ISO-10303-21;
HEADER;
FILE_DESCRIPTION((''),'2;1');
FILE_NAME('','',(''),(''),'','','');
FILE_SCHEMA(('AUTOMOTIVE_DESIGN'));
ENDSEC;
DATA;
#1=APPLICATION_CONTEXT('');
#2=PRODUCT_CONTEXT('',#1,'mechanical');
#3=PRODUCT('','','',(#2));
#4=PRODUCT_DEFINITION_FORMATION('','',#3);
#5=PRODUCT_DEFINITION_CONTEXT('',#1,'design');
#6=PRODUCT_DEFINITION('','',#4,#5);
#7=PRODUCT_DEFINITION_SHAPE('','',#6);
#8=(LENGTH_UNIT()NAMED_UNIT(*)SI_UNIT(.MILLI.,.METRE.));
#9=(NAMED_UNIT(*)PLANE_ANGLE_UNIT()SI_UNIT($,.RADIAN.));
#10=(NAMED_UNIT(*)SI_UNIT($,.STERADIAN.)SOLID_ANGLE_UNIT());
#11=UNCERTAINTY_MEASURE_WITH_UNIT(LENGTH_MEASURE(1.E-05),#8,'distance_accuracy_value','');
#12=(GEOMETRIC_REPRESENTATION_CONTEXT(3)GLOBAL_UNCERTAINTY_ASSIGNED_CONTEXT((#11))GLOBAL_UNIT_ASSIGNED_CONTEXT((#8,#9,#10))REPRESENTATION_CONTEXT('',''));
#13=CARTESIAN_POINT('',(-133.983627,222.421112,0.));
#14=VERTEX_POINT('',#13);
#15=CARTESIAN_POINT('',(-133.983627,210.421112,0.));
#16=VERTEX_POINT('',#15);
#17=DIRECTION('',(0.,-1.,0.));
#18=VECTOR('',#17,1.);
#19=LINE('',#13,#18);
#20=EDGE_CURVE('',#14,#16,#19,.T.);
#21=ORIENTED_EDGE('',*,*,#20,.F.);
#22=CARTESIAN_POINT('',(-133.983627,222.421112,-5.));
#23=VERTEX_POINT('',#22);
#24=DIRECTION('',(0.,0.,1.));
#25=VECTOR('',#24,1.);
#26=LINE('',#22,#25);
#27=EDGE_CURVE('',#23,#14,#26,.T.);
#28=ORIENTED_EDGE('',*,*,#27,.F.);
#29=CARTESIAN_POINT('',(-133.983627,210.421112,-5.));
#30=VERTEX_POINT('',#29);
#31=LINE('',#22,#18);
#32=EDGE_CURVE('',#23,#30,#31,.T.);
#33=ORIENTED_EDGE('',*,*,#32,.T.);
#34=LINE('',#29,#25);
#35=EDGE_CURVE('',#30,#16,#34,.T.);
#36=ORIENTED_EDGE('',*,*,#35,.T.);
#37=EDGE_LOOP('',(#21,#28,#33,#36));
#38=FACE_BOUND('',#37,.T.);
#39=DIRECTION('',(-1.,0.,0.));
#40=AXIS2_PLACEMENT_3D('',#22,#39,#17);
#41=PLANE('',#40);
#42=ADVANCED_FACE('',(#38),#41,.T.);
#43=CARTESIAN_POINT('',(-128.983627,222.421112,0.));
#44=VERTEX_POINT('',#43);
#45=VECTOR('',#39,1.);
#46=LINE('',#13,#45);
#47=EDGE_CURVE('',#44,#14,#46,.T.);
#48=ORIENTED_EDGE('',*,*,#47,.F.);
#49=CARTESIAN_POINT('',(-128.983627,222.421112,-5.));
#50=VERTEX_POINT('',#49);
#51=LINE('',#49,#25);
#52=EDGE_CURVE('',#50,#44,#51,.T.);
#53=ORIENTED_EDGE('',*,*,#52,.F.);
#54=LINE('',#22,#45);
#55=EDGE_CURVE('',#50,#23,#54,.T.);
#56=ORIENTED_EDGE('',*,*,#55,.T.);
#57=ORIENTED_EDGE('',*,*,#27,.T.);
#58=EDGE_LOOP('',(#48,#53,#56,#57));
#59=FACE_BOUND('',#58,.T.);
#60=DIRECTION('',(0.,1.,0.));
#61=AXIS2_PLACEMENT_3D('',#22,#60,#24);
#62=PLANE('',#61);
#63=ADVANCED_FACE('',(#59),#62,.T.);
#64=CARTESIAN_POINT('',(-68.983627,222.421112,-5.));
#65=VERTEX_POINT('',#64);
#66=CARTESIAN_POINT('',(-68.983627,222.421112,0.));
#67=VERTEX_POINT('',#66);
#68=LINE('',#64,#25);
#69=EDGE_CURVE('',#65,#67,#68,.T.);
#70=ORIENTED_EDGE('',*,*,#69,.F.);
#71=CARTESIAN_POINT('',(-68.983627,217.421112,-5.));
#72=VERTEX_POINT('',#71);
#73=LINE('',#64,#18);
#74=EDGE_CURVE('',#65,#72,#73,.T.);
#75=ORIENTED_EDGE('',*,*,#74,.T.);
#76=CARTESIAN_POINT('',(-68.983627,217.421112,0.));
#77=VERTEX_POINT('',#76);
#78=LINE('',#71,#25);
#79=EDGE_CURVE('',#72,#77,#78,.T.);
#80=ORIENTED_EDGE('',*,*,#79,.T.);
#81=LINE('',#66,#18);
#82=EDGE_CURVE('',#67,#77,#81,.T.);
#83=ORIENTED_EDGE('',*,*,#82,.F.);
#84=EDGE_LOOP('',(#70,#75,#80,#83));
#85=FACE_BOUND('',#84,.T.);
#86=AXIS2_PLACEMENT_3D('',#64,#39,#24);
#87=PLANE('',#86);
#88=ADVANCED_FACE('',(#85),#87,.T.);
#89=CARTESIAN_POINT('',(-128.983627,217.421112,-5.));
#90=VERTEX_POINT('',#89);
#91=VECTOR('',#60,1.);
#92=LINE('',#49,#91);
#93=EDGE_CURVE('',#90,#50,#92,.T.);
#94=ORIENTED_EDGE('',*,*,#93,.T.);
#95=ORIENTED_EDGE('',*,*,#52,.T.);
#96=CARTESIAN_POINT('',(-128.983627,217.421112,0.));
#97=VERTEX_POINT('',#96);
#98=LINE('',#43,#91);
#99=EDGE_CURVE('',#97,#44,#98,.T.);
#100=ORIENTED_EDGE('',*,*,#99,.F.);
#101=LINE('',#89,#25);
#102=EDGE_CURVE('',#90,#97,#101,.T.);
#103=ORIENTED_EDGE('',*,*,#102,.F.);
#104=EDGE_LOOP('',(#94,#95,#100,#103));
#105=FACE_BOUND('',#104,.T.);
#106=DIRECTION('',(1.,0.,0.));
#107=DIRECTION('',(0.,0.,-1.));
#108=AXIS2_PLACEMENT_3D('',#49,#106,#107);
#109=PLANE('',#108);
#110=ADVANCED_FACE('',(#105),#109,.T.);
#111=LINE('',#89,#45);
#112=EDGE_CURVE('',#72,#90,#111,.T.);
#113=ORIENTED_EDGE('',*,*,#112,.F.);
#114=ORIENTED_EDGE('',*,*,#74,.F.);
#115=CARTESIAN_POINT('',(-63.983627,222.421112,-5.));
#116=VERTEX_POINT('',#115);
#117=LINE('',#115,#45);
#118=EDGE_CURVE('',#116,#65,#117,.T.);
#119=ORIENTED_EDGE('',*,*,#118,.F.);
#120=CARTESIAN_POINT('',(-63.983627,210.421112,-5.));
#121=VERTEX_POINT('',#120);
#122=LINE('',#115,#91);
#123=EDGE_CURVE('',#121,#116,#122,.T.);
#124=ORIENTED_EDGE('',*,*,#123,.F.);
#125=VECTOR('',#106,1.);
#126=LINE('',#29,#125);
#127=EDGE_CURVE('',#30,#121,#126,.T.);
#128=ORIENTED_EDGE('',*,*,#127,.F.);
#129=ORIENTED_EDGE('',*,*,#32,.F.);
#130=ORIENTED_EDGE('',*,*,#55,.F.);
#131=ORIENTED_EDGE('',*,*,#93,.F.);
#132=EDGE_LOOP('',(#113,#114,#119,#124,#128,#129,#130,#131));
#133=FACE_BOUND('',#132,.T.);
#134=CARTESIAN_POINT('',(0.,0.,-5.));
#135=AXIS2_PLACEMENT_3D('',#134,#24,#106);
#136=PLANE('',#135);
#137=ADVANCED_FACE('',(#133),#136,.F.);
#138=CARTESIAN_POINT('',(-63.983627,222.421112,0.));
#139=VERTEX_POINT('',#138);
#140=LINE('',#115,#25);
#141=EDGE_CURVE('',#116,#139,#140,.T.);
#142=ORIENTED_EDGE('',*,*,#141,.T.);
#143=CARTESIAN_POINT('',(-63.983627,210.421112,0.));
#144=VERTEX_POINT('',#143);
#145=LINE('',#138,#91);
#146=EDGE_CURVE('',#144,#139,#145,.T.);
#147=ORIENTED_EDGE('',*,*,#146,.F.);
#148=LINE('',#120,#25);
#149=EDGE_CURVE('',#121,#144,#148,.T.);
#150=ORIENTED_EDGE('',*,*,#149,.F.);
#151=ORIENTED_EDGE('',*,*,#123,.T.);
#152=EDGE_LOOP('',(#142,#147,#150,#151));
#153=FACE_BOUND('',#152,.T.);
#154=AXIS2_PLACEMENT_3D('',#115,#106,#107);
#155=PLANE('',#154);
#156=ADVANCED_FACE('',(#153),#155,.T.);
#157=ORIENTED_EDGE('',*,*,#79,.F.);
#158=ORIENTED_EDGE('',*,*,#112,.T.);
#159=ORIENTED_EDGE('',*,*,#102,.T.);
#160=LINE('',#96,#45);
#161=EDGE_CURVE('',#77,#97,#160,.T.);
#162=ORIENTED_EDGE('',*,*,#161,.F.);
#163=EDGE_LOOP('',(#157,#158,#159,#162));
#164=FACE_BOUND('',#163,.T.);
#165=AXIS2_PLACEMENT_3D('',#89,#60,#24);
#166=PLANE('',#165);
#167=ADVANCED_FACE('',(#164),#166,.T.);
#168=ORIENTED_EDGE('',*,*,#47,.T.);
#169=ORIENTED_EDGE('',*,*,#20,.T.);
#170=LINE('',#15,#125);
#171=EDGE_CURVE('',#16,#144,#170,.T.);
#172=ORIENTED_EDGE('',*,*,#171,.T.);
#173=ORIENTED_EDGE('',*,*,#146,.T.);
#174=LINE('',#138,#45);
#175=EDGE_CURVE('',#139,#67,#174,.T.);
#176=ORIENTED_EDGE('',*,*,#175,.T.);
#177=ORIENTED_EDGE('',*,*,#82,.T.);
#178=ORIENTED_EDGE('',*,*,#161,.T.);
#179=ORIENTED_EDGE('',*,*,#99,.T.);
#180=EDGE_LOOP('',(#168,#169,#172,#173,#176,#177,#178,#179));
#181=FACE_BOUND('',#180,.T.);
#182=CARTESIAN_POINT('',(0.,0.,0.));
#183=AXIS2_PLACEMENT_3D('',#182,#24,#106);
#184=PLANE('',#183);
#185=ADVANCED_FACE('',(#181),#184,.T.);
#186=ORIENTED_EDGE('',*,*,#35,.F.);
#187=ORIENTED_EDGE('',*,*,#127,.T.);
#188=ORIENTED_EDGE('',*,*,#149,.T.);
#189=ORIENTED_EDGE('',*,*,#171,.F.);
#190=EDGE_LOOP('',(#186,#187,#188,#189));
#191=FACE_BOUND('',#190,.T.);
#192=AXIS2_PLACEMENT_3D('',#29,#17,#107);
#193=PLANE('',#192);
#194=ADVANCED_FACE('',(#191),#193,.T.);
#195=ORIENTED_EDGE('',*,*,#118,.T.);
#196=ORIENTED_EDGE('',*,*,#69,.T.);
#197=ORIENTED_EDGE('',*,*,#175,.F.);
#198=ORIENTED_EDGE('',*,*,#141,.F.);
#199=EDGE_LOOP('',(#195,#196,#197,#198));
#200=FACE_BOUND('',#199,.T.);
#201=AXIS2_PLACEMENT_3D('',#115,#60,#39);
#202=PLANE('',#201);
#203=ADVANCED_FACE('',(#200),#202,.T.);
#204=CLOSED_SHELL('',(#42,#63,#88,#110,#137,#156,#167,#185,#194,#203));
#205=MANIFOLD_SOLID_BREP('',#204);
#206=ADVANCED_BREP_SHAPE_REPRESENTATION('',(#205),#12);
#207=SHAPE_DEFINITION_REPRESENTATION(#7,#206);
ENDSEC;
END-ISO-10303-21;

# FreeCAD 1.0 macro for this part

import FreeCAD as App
import Part
import Sketcher

doc = App.newDocument("Part")
params = doc.addObject("Spreadsheet::Sheet", "Params")
for row, (alias, value) in enumerate([
    ("sketch1_width", "5 mm"),
    ("sketch1_width2", "70 mm"),
    ("sketch1_height", "12 mm"),
    ("pad1_length", "5 mm"),
], start=1):
    params.set(f"A{row}", alias)
    params.set(f"B{row}", "=" + value)
    params.setAlias(f"B{row}", alias)

body = doc.addObject("PartDesign::Body", "Body")

# Sketch on XY plane
sketch1 = doc.addObject("Sketcher::SketchObject", "Sketch")
body.addObject(sketch1)
sketch1.AttachmentSupport = (doc.XY_Plane, [""])
sketch1.MapMode = "FlatFace"
sketch1.addGeometry(Part.LineSegment(App.Vector(-129, 222, 0), App.Vector(-134, 222, 0)), False)
sketch1.addGeometry(Part.LineSegment(App.Vector(-134, 222, 0), App.Vector(-134, 210, 0)), False)
sketch1.addGeometry(Part.LineSegment(App.Vector(-134, 210, 0), App.Vector(-64, 210, 0)), False)
sketch1.addGeometry(Part.LineSegment(App.Vector(-64, 210, 0), App.Vector(-64, 222, 0)), False)
sketch1.addGeometry(Part.LineSegment(App.Vector(-64, 222, 0), App.Vector(-69, 222, 0)), False)
sketch1.addGeometry(Part.LineSegment(App.Vector(-69, 222, 0), App.Vector(-69, 217, 0)), False)
sketch1.addGeometry(Part.LineSegment(App.Vector(-69, 217, 0), App.Vector(-129, 217, 0)), False)
sketch1.addGeometry(Part.LineSegment(App.Vector(-129, 217, 0), App.Vector(-129, 222, 0)), False)
sketch1.addConstraint(Sketcher.Constraint("Coincident", 0, 2, 1, 1))
sketch1.addConstraint(Sketcher.Constraint("Coincident", 1, 2, 2, 1))
sketch1.addConstraint(Sketcher.Constraint("Coincident", 2, 2, 3, 1))
sketch1.addConstraint(Sketcher.Constraint("Coincident", 3, 2, 4, 1))
sketch1.addConstraint(Sketcher.Constraint("Coincident", 4, 2, 5, 1))
sketch1.addConstraint(Sketcher.Constraint("Coincident", 5, 2, 6, 1))
sketch1.addConstraint(Sketcher.Constraint("Coincident", 6, 2, 7, 1))
sketch1.addConstraint(Sketcher.Constraint("Coincident", 7, 2, 0, 1))
sketch1.addConstraint(Sketcher.Constraint("Horizontal", 0))
sketch1.addConstraint(Sketcher.Constraint("Vertical", 1))
sketch1.addConstraint(Sketcher.Constraint("Horizontal", 2))
sketch1.addConstraint(Sketcher.Constraint("Vertical", 3))
sketch1.addConstraint(Sketcher.Constraint("Horizontal", 4))
sketch1.addConstraint(Sketcher.Constraint("Vertical", 5))
sketch1.addConstraint(Sketcher.Constraint("Horizontal", 6))
sketch1.addConstraint(Sketcher.Constraint("Vertical", 7))
sketch1.addConstraint(Sketcher.Constraint("Horizontal", 0, 2, 3, 2))
sketch1.addConstraint(Sketcher.Constraint("Equal", 0, 4))
sketch1.addConstraint(Sketcher.Constraint("Equal", 4, 5))
sketch1.addConstraint(Sketcher.Constraint("DistanceX", 0, 2, 0, 1, 5.0))
sketch1.addConstraint(Sketcher.Constraint("DistanceX", 2, 1, 2, 2, 70.0))
sketch1.addConstraint(Sketcher.Constraint("DistanceY", 1, 2, 1, 1, 12.0))
sketch1.addConstraint(Sketcher.Constraint("DistanceY", -1, 1, 0, 2, 222.421112))
sketch1.addConstraint(Sketcher.Constraint("DistanceX", 0, 2, -1, 1, 133.983627))
sketch1.setExpression("Constraints[19]", "Params.sketch1_width")
sketch1.setExpression("Constraints[20]", "Params.sketch1_width2")
sketch1.setExpression("Constraints[21]", "Params.sketch1_height")
pad1 = doc.addObject("PartDesign::Pad", "Pad")
body.addObject(pad1)
pad1.Profile = sketch1
pad1.setExpression("Length", "Params.pad1_length")
pad1.Reversed = True

doc.recompute()
